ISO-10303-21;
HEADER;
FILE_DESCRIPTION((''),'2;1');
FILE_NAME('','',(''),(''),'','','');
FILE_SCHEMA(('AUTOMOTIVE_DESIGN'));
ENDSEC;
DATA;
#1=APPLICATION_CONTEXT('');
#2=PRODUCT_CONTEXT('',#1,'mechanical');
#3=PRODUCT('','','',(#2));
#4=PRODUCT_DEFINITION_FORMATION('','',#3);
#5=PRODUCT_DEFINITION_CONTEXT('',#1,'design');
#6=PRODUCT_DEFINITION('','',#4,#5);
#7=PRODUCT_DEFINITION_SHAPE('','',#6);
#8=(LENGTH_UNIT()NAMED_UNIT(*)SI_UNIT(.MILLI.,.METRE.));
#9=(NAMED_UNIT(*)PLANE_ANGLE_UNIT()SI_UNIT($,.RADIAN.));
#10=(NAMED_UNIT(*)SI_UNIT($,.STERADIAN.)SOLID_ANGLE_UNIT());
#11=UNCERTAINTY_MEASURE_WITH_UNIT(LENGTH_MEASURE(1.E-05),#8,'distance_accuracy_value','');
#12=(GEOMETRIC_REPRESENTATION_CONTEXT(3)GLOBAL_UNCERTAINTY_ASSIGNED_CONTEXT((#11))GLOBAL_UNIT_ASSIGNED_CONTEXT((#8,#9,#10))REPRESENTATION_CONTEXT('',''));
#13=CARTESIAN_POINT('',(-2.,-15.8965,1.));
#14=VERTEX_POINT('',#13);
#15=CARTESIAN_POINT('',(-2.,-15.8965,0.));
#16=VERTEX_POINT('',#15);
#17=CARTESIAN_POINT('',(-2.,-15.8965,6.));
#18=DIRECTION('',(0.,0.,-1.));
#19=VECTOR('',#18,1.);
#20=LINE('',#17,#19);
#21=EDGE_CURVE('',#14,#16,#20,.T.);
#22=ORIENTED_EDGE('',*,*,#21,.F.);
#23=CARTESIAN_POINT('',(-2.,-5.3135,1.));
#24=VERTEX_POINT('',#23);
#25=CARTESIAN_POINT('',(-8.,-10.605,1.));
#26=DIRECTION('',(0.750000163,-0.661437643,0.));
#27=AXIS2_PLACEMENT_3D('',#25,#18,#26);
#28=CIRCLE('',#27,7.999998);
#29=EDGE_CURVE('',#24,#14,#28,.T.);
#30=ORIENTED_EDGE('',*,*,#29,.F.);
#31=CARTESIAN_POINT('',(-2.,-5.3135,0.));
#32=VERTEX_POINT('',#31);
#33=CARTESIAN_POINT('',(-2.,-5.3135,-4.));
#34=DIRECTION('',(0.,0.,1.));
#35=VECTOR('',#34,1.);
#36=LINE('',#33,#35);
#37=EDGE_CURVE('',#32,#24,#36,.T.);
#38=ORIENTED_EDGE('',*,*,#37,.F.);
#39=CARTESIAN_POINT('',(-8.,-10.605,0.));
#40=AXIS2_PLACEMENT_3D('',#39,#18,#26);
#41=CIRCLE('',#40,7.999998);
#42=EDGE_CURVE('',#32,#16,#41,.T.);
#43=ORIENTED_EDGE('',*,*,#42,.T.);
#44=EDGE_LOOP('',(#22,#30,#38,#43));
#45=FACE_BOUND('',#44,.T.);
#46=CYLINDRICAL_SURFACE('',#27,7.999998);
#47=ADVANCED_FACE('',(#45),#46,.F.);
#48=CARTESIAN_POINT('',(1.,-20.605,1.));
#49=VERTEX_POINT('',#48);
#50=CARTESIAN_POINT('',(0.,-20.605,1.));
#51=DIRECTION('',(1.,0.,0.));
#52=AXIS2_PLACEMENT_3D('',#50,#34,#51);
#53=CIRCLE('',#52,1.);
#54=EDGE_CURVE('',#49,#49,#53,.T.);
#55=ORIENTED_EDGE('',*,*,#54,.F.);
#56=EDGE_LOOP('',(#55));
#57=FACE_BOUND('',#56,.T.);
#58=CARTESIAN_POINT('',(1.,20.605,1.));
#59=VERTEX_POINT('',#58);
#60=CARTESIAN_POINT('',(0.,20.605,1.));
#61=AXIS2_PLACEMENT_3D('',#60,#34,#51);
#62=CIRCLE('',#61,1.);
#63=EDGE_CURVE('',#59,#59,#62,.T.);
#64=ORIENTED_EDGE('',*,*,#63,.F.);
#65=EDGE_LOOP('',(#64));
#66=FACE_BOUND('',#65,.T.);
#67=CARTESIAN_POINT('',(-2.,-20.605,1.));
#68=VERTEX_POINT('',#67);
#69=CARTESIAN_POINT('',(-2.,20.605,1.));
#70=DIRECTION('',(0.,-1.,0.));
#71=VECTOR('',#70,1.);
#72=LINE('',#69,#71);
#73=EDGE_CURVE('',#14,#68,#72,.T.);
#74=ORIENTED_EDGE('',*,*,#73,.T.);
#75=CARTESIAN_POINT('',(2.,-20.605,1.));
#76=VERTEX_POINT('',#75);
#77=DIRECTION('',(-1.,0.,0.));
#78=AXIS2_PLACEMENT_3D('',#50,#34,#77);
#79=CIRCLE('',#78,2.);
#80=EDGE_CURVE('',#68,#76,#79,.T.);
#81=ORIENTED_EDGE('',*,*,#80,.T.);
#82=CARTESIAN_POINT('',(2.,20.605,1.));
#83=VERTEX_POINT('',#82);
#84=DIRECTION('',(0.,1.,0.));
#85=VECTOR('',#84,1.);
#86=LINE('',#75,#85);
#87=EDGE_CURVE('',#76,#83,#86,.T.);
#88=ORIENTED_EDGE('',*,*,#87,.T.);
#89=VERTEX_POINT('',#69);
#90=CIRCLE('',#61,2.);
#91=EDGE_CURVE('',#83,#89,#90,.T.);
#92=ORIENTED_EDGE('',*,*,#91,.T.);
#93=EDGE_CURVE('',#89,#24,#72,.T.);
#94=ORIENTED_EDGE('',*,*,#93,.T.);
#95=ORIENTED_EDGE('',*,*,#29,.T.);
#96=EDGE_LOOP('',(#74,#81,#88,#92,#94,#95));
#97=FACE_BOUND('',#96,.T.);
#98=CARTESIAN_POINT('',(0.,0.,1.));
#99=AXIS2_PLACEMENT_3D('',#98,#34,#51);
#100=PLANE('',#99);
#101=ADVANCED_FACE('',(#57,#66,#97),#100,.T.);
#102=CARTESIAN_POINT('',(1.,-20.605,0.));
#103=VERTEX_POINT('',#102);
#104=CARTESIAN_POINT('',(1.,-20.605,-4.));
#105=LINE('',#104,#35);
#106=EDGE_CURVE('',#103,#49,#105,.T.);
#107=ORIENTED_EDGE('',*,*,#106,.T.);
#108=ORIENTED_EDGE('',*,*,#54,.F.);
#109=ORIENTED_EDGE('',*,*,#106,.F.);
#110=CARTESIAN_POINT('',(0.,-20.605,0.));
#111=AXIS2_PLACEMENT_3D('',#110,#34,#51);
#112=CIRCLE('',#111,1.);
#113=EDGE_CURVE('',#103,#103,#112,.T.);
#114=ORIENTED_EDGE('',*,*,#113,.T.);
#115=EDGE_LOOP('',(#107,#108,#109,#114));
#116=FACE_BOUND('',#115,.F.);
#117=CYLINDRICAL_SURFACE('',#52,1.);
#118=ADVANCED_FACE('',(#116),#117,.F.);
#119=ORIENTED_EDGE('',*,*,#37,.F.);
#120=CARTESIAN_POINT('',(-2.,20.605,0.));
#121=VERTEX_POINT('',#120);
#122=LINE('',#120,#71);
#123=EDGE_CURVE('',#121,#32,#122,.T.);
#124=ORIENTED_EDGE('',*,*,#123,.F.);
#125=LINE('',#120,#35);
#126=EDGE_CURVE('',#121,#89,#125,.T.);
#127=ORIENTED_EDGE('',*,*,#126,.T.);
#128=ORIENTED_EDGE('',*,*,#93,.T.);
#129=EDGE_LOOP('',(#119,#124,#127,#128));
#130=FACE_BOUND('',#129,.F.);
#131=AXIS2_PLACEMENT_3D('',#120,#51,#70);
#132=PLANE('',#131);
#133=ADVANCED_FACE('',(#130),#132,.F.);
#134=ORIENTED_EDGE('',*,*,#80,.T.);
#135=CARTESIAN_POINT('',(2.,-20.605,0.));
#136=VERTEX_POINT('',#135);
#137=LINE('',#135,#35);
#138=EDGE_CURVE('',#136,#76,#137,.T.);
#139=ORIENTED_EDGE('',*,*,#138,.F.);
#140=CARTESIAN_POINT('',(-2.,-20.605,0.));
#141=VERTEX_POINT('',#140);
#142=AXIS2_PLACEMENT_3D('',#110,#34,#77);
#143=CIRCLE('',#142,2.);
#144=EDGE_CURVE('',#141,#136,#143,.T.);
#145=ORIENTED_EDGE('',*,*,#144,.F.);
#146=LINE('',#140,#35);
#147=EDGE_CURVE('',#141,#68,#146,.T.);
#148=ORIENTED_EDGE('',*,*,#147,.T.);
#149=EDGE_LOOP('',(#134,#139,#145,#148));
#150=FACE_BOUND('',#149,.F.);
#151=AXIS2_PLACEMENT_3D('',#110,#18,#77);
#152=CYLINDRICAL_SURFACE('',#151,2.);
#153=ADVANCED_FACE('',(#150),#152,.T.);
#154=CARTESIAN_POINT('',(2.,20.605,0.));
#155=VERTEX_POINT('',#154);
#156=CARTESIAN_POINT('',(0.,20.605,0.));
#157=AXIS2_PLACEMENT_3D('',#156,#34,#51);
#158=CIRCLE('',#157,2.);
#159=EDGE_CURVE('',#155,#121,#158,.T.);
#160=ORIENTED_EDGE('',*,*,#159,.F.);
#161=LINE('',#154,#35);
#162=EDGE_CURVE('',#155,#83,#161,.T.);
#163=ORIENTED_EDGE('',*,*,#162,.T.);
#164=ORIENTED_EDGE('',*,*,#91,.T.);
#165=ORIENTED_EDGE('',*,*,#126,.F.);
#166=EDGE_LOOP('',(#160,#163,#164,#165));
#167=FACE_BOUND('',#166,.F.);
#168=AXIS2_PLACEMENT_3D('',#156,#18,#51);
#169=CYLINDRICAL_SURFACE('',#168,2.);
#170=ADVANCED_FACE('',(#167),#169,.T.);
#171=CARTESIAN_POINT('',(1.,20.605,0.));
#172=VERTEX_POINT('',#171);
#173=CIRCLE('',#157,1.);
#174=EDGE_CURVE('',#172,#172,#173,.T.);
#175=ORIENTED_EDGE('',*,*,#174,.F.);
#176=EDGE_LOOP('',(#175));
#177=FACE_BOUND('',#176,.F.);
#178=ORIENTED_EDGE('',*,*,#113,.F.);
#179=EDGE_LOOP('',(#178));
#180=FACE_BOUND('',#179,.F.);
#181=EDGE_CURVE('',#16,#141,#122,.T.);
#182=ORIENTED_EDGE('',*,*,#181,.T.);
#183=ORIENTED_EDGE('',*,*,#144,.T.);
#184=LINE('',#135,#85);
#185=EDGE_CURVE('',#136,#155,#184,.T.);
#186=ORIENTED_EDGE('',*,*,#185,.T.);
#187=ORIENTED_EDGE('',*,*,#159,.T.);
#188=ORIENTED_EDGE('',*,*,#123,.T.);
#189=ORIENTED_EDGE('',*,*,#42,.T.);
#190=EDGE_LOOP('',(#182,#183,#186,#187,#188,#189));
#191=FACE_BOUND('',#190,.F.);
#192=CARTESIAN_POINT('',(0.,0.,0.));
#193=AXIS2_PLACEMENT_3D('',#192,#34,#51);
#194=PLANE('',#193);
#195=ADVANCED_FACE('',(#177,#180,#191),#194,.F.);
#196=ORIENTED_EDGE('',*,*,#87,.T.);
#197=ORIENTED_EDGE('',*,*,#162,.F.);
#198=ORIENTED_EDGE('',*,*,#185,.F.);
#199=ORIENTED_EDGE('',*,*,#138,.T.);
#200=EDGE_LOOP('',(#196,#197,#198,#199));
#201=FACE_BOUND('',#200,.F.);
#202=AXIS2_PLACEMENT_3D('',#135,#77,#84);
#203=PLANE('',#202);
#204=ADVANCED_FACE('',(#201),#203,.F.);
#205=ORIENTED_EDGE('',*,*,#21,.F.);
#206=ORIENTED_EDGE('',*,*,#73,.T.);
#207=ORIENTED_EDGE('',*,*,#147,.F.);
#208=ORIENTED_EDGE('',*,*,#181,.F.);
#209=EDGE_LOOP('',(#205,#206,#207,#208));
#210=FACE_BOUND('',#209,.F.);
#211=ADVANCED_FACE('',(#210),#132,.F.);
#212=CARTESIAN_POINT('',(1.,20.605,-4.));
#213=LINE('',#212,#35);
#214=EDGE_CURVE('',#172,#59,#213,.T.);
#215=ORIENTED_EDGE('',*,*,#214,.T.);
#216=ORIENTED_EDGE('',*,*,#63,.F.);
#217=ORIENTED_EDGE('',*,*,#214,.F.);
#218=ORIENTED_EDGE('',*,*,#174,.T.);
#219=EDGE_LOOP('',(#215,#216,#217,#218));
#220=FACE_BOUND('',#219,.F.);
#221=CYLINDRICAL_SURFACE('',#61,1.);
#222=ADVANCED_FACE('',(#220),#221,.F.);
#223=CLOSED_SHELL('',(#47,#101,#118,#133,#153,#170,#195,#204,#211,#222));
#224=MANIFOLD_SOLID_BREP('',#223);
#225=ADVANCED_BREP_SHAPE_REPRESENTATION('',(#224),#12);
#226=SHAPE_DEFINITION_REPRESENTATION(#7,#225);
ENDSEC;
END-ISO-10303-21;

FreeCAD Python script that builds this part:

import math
import FreeCAD as App
import Part
import Sketcher

V = App.Vector

doc = App.newDocument("Part")
body = doc.addObject("PartDesign::Body", "Body")

# Sketch on XY plane
sketch1 = body.newObject("Sketcher::SketchObject", "Sketch")
sketch1.AttachmentSupport = (doc.getObject("XY_Plane"), [""])
sketch1.MapMode = "FlatFace"
sketch1.addGeometry(Part.ArcOfCircle(Part.Circle(V(0, -20.6, 0), V(0, 0, 1), 2), math.radians(180), math.radians(360)), False)
sketch1.addGeometry(Part.LineSegment(V(2, -20.6, 0), V(2, 20.6, 0)), False)
sketch1.addGeometry(Part.ArcOfCircle(Part.Circle(V(0, 20.6, 0), V(0, 0, 1), 2), math.radians(0), math.radians(180)), False)
sketch1.addGeometry(Part.LineSegment(V(-2, 20.6, 0), V(-2, -20.6, 0)), False)
sketch1.addConstraint(Sketcher.Constraint("Tangent", 0, 2, 1, 1))
sketch1.addConstraint(Sketcher.Constraint("Tangent", 1, 2, 2, 1))
sketch1.addConstraint(Sketcher.Constraint("Tangent", 2, 2, 3, 1))
sketch1.addConstraint(Sketcher.Constraint("Tangent", 3, 2, 0, 1))
sketch1.addConstraint(Sketcher.Constraint("Vertical", 1))
sketch1.addConstraint(Sketcher.Constraint("Vertical", 3))
sketch1.addConstraint(Sketcher.Constraint("Symmetric", 0, 3, 2, 3, -1, 1))
sketch1.addConstraint(Sketcher.Constraint("Radius", 0, 2.0))
sketch1.addConstraint(Sketcher.Constraint("DistanceY", 1, 1, 1, 2, 41.21))
pad1 = body.newObject("PartDesign::Pad", "Pad")
pad1.Profile = sketch1
pad1.Length = 1

# Sketch on XY plane
sketch2 = body.newObject("Sketcher::SketchObject", "Sketch001")
sketch2.AttachmentSupport = (doc.getObject("XY_Plane"), [""])
sketch2.MapMode = "FlatFace"
sketch2.AttachmentOffset = App.Placement(V(0, 0, 1), App.Rotation())
sketch2.addGeometry(Part.Circle(V(0, -20.6, 0), V(0, 0, 1), 0.8), False)
sketch2.addGeometry(Part.Circle(V(0, 20.6, 0), V(0, 0, 1), 0.8), False)
sketch2.addConstraint(Sketcher.Constraint("Equal", 0, 1))
sketch2.addConstraint(Sketcher.Constraint("Symmetric", 0, 3, 1, 3, -1, 1))
sketch2.addConstraint(Sketcher.Constraint("PointOnObject", 0, 3, -2))
sketch2.addConstraint(Sketcher.Constraint("Diameter", 0, 1.5))
sketch2.addConstraint(Sketcher.Constraint("DistanceY", 0, 3, 1, 3, 41.21))
pad2 = body.newObject("PartDesign::Pad", "Pad001")
pad2.Profile = sketch2
pad2.Length = 1

# Sketch on XY plane
sketch3 = body.newObject("Sketcher::SketchObject", "Sketch002")
sketch3.AttachmentSupport = (doc.getObject("XY_Plane"), [""])
sketch3.MapMode = "FlatFace"
sketch3.AttachmentOffset = App.Placement(V(0, 0, 1), App.Rotation())
sketch3.addGeometry(Part.Circle(V(0, 20.6, 0), V(0, 0, 1), 1), False)
sketch3.addGeometry(Part.Circle(V(0, -20.6, 0), V(0, 0, 1), 1), False)
sketch3.addConstraint(Sketcher.Constraint("Equal", 0, 1))
sketch3.addConstraint(Sketcher.Constraint("Symmetric", 0, 3, 1, 3, -1, 1))
sketch3.addConstraint(Sketcher.Constraint("PointOnObject", 0, 3, -2))
sketch3.addConstraint(Sketcher.Constraint("Diameter", 0, 2.0))
sketch3.addConstraint(Sketcher.Constraint("DistanceY", 1, 3, 0, 3, 41.21))
pocket1 = body.newObject("PartDesign::Pocket", "Pocket")
pocket1.Profile = sketch3
pocket1.Length = 10
pocket1.Midplane = True

# Sketch on XY plane
sketch4 = body.newObject("Sketcher::SketchObject", "Sketch003")
sketch4.AttachmentSupport = (doc.getObject("XY_Plane"), [""])
sketch4.MapMode = "FlatFace"
sketch4.AttachmentOffset = App.Placement(V(0, 0, 1), App.Rotation())
sketch4.addGeometry(Part.ArcOfCircle(Part.Circle(V(-8, -11, 0), V(0, 0, 1), 8), math.radians(-41), math.radians(41)), False)
sketch4.addGeometry(Part.LineSegment(V(-2, -5, 0), V(-2, -16, 0)), False)
sketch4.addConstraint(Sketcher.Constraint("Coincident", 0, 1, 1, 2))
sketch4.addConstraint(Sketcher.Constraint("Coincident", 1, 1, 0, 2))
sketch4.addConstraint(Sketcher.Constraint("Vertical", 1))
sketch4.addConstraint(Sketcher.Constraint("Radius", 0, 8.0))
sketch4.addConstraint(Sketcher.Constraint("DistanceX", 0, 3, -1, 1, 8.0))
sketch4.addConstraint(Sketcher.Constraint("DistanceX", 0, 3, 0, 1, 6.0))
sketch4.addConstraint(Sketcher.Constraint("DistanceY", 0, 3, -1, 1, 10.605))
pocket2 = body.newObject("PartDesign::Pocket", "Pocket001")
pocket2.Profile = sketch4
pocket2.Length = 10
pocket2.Midplane = True

doc.recompute()
